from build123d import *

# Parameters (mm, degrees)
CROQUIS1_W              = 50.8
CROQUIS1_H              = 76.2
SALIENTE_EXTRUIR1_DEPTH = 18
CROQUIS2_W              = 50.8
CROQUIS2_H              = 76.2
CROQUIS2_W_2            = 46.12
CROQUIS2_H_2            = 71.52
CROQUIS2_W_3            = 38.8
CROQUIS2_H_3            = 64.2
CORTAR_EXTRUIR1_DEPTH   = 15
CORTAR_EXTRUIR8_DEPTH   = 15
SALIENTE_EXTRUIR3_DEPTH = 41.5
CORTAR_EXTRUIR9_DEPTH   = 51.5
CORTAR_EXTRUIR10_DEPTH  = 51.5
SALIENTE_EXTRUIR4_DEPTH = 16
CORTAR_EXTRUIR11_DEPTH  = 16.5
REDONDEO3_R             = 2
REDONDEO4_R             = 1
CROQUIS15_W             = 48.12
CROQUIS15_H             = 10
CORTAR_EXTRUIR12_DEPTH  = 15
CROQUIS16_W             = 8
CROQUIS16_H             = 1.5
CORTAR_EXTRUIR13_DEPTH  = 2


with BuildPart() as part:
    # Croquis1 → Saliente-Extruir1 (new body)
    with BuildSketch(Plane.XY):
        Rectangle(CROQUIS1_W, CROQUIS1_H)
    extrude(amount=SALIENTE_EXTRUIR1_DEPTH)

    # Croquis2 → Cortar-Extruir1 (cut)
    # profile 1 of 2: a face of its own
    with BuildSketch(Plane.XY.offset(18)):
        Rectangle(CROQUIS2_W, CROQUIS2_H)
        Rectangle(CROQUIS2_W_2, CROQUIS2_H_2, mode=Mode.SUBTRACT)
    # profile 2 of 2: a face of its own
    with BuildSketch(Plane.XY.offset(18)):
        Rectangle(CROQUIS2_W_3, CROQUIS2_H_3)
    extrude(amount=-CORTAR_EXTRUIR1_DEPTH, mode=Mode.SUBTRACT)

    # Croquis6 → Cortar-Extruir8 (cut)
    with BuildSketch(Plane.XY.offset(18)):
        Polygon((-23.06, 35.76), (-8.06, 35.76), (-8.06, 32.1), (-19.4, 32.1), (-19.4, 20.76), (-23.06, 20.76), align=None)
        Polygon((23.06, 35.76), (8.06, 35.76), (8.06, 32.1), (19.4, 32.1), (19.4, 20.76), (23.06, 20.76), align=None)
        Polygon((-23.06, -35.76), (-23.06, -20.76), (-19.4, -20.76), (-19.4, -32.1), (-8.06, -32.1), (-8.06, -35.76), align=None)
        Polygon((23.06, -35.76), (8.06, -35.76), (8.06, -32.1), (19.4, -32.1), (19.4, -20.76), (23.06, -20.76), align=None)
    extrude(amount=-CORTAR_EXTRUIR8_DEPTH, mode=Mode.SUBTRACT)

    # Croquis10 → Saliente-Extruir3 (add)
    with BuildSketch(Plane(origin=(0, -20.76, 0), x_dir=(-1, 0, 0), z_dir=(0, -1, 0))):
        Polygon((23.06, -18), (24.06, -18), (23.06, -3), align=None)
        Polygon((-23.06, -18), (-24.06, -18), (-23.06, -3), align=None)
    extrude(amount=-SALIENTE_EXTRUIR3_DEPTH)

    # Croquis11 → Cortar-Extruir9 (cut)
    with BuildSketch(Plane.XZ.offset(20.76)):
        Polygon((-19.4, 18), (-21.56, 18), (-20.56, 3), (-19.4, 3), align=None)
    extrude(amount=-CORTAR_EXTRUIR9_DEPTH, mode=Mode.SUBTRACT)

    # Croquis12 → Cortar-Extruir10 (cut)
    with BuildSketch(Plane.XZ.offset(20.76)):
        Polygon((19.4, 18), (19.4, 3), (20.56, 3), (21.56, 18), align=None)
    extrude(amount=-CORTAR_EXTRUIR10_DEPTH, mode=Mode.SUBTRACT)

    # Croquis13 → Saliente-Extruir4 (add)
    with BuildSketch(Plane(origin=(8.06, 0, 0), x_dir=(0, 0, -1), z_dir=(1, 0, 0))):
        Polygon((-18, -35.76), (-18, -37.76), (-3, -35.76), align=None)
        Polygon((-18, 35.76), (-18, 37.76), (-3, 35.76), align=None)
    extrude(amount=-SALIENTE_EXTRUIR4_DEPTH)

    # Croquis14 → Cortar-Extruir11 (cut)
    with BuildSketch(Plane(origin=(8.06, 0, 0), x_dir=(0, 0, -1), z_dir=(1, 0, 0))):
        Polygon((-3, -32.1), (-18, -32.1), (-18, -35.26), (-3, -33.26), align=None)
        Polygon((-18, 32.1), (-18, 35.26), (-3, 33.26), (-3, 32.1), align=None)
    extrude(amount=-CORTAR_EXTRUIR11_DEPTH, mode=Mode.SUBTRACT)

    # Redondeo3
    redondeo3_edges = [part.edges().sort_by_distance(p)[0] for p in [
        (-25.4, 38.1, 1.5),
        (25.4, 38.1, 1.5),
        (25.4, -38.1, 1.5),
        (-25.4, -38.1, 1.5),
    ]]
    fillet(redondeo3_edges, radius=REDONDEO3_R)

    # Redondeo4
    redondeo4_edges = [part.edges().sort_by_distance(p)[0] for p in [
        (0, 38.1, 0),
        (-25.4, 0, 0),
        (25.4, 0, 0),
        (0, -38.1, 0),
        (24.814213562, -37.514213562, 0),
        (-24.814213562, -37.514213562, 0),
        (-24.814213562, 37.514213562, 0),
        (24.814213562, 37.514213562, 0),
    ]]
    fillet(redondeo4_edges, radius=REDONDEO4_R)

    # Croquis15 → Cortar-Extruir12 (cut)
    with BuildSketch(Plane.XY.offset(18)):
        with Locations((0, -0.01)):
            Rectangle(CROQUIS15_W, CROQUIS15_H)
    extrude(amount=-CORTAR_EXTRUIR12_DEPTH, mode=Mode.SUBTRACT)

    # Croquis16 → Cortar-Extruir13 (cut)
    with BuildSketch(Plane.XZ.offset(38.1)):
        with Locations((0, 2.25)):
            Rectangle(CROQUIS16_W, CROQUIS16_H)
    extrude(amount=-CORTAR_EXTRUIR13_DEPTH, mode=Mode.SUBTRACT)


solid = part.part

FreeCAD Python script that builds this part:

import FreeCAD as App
import Part
import Sketcher
from FreeCAD import Vector
Q = App.Units.Quantity


def edges_at(feature, points):
    """Names of the edges that pass closest to the given points."""
    edges = feature.Shape.Edges
    near = lambda p: min(range(len(edges)), key=lambda i: edges[i].distToShape(Part.Vertex(*p))[0])
    return sorted({f"Edge{near(p) + 1}" for p in points})


def add_polygon(sketch, points):
    """Adds a closed chain of lines whose ends are joined by coincident constraints."""
    first, n = sketch.GeometryCount, len(points)
    for a, b in zip(points, points[1:] + points[:1]):
        sketch.addGeometry(Part.LineSegment(App.Vector(*a, 0), App.Vector(*b, 0)), False)
    for i in range(n):
        sketch.addConstraint(Sketcher.Constraint("Coincident", first + i, 2, first + (i + 1) % n, 1))

doc = App.newDocument("Part")
body = doc.addObject("PartDesign::Body", "Body")

sketch1 = body.newObject("Sketcher::SketchObject", "Sketch")
sketch1.AttachmentSupport = (doc.getObject("XY_Plane"), [""])
sketch1.MapMode = "FlatFace"
add_polygon(sketch1, [(-25, 38), (-25, -38), (25, -38), (25, 38)])
sketch1.addConstraint([
    Sketcher.Constraint("Vertical", 0),
    Sketcher.Constraint("Horizontal", 1),
    Sketcher.Constraint("Vertical", 2),
    Sketcher.Constraint("Horizontal", 3),
    Sketcher.Constraint("Symmetric", 0, 2, 2, 2, -1, 1),
    Sketcher.Constraint("DistanceX", 1, 1, 1, 2, Q("50.8 mm")),
    Sketcher.Constraint("DistanceY", 0, 2, 0, 1, Q("76.2 mm")),
])
pad1 = body.newObject("PartDesign::Pad", "Pad")
pad1.Profile = sketch1
pad1.Length = 18

sketch2 = body.newObject("Sketcher::SketchObject", "Sketch001")
sketch2.AttachmentSupport = (doc.getObject("XY_Plane"), [""])
sketch2.MapMode = "FlatFace"
sketch2.AttachmentOffset = App.Placement(Vector(0, 0, 18), App.Rotation())
add_polygon(sketch2, [(-25, 38), (-25, -38), (25, -38), (25, 38)])
add_polygon(sketch2, [(23, -36), (-23, -36), (-23, 36), (23, 36)])
add_polygon(sketch2, [(-19, 32), (-19, -32), (19, -32), (19, 32)])
sketch2.addConstraint([
    Sketcher.Constraint("Vertical", 0),
    Sketcher.Constraint("Horizontal", 1),
    Sketcher.Constraint("Vertical", 2),
    Sketcher.Constraint("Horizontal", 3),
    Sketcher.Constraint("Horizontal", 4),
    Sketcher.Constraint("Vertical", 5),
    Sketcher.Constraint("Horizontal", 6),
    Sketcher.Constraint("Vertical", 7),
    Sketcher.Constraint("Vertical", 8),
    Sketcher.Constraint("Horizontal", 9),
    Sketcher.Constraint("Vertical", 10),
    Sketcher.Constraint("Horizontal", 11),
    Sketcher.Constraint("Symmetric", 0, 2, 2, 2, -1, 1),
    Sketcher.Constraint("Symmetric", 4, 2, 6, 2, -1, 1),
    Sketcher.Constraint("Symmetric", 8, 2, 10, 2, -1, 1),
    Sketcher.Constraint("DistanceX", 1, 1, 1, 2, Q("50.8 mm")),
    Sketcher.Constraint("DistanceX", 9, 1, 9, 2, Q("38.8 mm")),
    Sketcher.Constraint("DistanceY", 0, 2, 0, 1, Q("76.2 mm")),
    Sketcher.Constraint("DistanceY", 8, 2, 8, 1, Q("64.2 mm")),
    Sketcher.Constraint("DistanceX", 4, 2, 4, 1, Q("46.12 mm")),
    Sketcher.Constraint("DistanceY", 5, 1, 5, 2, Q("71.52 mm")),
])
pocket1 = body.newObject("PartDesign::Pocket", "Pocket")
pocket1.Profile = sketch2
pocket1.Length = 15

sketch3 = body.newObject("Sketcher::SketchObject", "Sketch002")
sketch3.AttachmentSupport = (doc.getObject("XY_Plane"), [""])
sketch3.MapMode = "FlatFace"
sketch3.AttachmentOffset = App.Placement(Vector(0, 0, 18), App.Rotation())
add_polygon(sketch3, [(-8.1, 35.8), (-23.1, 35.8), (-23.1, 20.8), (-19.4, 20.8), (-19.4, 32.1), (-8.1, 32.1)])
add_polygon(sketch3, [(23.1, 35.8), (8.1, 35.8), (8.1, 32.1), (19.4, 32.1), (19.4, 20.8), (23.1, 20.8)])
add_polygon(sketch3, [(-23.1, -20.8), (-23.1, -35.8), (-8.1, -35.8), (-8.1, -32.1), (-19.4, -32.1), (-19.4, -20.8)])
add_polygon(sketch3, [(8.1, -35.8), (23.1, -35.8), (23.1, -20.8), (19.4, -20.8), (19.4, -32.1), (8.1, -32.1)])
sketch3.addConstraint([
    Sketcher.Constraint("Horizontal", 0),
    Sketcher.Constraint("Vertical", 1),
    Sketcher.Constraint("Horizontal", 2),
    Sketcher.Constraint("Vertical", 3),
    Sketcher.Constraint("Horizontal", 4),
    Sketcher.Constraint("Vertical", 5),
    Sketcher.Constraint("Horizontal", 6),
    Sketcher.Constraint("Vertical", 7),
    Sketcher.Constraint("Horizontal", 8),
    Sketcher.Constraint("Vertical", 9),
    Sketcher.Constraint("Horizontal", 10),
    Sketcher.Constraint("Vertical", 11),
    Sketcher.Constraint("Vertical", 12),
    Sketcher.Constraint("Horizontal", 13),
    Sketcher.Constraint("Vertical", 14),
    Sketcher.Constraint("Horizontal", 15),
    Sketcher.Constraint("Vertical", 16),
    Sketcher.Constraint("Horizontal", 17),
    Sketcher.Constraint("Horizontal", 18),
    Sketcher.Constraint("Vertical", 19),
    Sketcher.Constraint("Horizontal", 20),
    Sketcher.Constraint("Vertical", 21),
    Sketcher.Constraint("Horizontal", 22),
    Sketcher.Constraint("Vertical", 23),
    Sketcher.Constraint("Symmetric", 11, 2, 12, 2, -1, 1),
    Sketcher.Constraint("Symmetric", 7, 2, 14, 2, -1, 1),
    Sketcher.Constraint("Symmetric", 9, 2, 16, 2, -1, 1),
    Sketcher.Constraint("Symmetric", 0, 2, 18, 2, -1, 1),
    Sketcher.Constraint("Symmetric", 2, 2, 20, 2, -1, 1),
    Sketcher.Constraint("Symmetric", 4, 2, 22, 2, -1, 1),
    Sketcher.Constraint("Symmetric", 5, 2, 6, 2, -2),
    Sketcher.Constraint("Symmetric", 3, 2, 8, 2, -2),
    Sketcher.Constraint("Symmetric", 1, 2, 10, 2, -2),
    Sketcher.Constraint("Equal", 18, 1),
    Sketcher.Constraint("Equal", 22, 3),
    Sketcher.Constraint("DistanceX", 0, 2, 0, 1, Q("15 mm")),
    Sketcher.Constraint("DistanceX", 2, 1, 2, 2, Q("3.66 mm")),
    Sketcher.Constraint("DistanceX", 2, 2, -1, 1, Q("19.4 mm")),
    Sketcher.Constraint("DistanceY", -1, 1, 3, 2, Q("32.1 mm")),
])
pocket2 = body.newObject("PartDesign::Pocket", "Pocket001")
pocket2.Profile = sketch3
pocket2.Length = 15

sketch4 = body.newObject("Sketcher::SketchObject", "Sketch003")
sketch4.AttachmentSupport = (doc.getObject("XZ_Plane"), [""])
sketch4.MapMode = "FlatFace"
sketch4.AttachmentOffset = App.Placement(Vector(0, 0, 20.76), App.Rotation())
add_polygon(sketch4, [(-23.1, 18), (-24.1, 18), (-23.1, 3)])
add_polygon(sketch4, [(24.1, 18), (23.1, 18), (23.1, 3)])
sketch4.addConstraint([
    Sketcher.Constraint("Horizontal", 0),
    Sketcher.Constraint("Vertical", 2),
    Sketcher.Constraint("Horizontal", 3),
    Sketcher.Constraint("Vertical", 4),
    Sketcher.Constraint("Symmetric", 2, 2, 3, 2, -2),
    Sketcher.Constraint("Horizontal", 1, 2, 4, 2),
    Sketcher.Constraint("Equal", 0, 3),
    Sketcher.Constraint("DistanceX", 0, 2, 0, 1, Q("1 mm")),
    Sketcher.Constraint("DistanceY", 2, 1, 2, 2, Q("15 mm")),
    Sketcher.Constraint("DistanceY", -1, 1, 0, 2, Q("18 mm")),
    Sketcher.Constraint("DistanceX", 0, 2, -1, 1, Q("24.06 mm")),
])
pad2 = body.newObject("PartDesign::Pad", "Pad001")
pad2.Profile = sketch4
pad2.Length = 41.5
pad2.Reversed = True

sketch5 = body.newObject("Sketcher::SketchObject", "Sketch004")
sketch5.AttachmentSupport = (doc.getObject("XZ_Plane"), [""])
sketch5.MapMode = "FlatFace"
sketch5.AttachmentOffset = App.Placement(Vector(0, 0, 20.76), App.Rotation())
add_polygon(sketch5, [(-19.4, 18), (-21.6, 18), (-20.6, 3), (-19.4, 3)])
sketch5.addConstraint([
    Sketcher.Constraint("Horizontal", 0),
    Sketcher.Constraint("Horizontal", 2),
    Sketcher.Constraint("Vertical", 3),
    Sketcher.Constraint("DistanceY", 3, 1, 3, 2, Q("15 mm")),
    Sketcher.Constraint("DistanceY", -1, 1, 0, 2, Q("18 mm")),
    Sketcher.Constraint("DistanceX", 0, 2, 1, 2, Q("1 mm")),
    Sketcher.Constraint("DistanceX", 0, 2, 0, 1, Q("2.16 mm")),
    Sketcher.Constraint("DistanceX", 2, 2, -1, 1, Q("19.4 mm")),
])
pocket3 = body.newObject("PartDesign::Pocket", "Pocket002")
pocket3.Profile = sketch5
pocket3.Length = 51.5

sketch6 = body.newObject("Sketcher::SketchObject", "Sketch005")
sketch6.AttachmentSupport = (doc.getObject("XZ_Plane"), [""])
sketch6.MapMode = "FlatFace"
sketch6.AttachmentOffset = App.Placement(Vector(0, 0, 20.76), App.Rotation())
add_polygon(sketch6, [(19.4, 18), (19.4, 3), (20.6, 3), (21.6, 18)])
sketch6.addConstraint([
    Sketcher.Constraint("Vertical", 0),
    Sketcher.Constraint("Horizontal", 1),
    Sketcher.Constraint("Horizontal", 3),
    Sketcher.Constraint("DistanceY", 0, 2, 0, 1, Q("15 mm")),
    Sketcher.Constraint("DistanceY", -1, 1, 0, 2, Q("3 mm")),
    Sketcher.Constraint("DistanceX", 1, 2, 2, 2, Q("1 mm")),
    Sketcher.Constraint("DistanceX", 1, 1, 1, 2, Q("1.16 mm")),
    Sketcher.Constraint("DistanceX", -1, 1, 0, 2, Q("19.4 mm")),
])
pocket4 = body.newObject("PartDesign::Pocket", "Pocket003")
pocket4.Profile = sketch6
pocket4.Length = 51.5

sketch7 = body.newObject("Sketcher::SketchObject", "Sketch006")
sketch7.AttachmentSupport = (doc.getObject("YZ_Plane"), [""])
sketch7.MapMode = "FlatFace"
sketch7.AttachmentOffset = App.Placement(Vector(0, 0, 8.06), App.Rotation())
add_polygon(sketch7, [(-35.8, 18), (-37.8, 18), (-35.8, 3)])
add_polygon(sketch7, [(37.8, 18), (35.8, 18), (35.8, 3)])
sketch7.addConstraint([
    Sketcher.Constraint("Horizontal", 0),
    Sketcher.Constraint("Vertical", 2),
    Sketcher.Constraint("Horizontal", 3),
    Sketcher.Constraint("Vertical", 4),
    Sketcher.Constraint("Symmetric", 2, 2, 3, 2, -2),
    Sketcher.Constraint("Horizontal", 1, 2, 4, 2),
    Sketcher.Constraint("Equal", 0, 3),
    Sketcher.Constraint("DistanceX", 0, 2, 0, 1, Q("2 mm")),
    Sketcher.Constraint("DistanceY", 2, 1, 2, 2, Q("15 mm")),
    Sketcher.Constraint("DistanceY", -1, 1, 0, 2, Q("18 mm")),
    Sketcher.Constraint("DistanceX", 0, 2, -1, 1, Q("37.76 mm")),
])
pad3 = body.newObject("PartDesign::Pad", "Pad002")
pad3.Profile = sketch7
pad3.Length = 16
pad3.Reversed = True

sketch8 = body.newObject("Sketcher::SketchObject", "Sketch007")
sketch8.AttachmentSupport = (doc.getObject("YZ_Plane"), [""])
sketch8.MapMode = "FlatFace"
sketch8.AttachmentOffset = App.Placement(Vector(0, 0, 8.06), App.Rotation())
add_polygon(sketch8, [(-32.1, 3), (-32.1, 18), (-35.3, 18), (-33.3, 3)])
add_polygon(sketch8, [(35.3, 18), (32.1, 18), (32.1, 3), (33.3, 3)])
sketch8.addConstraint([
    Sketcher.Constraint("Vertical", 0),
    Sketcher.Constraint("Horizontal", 1),
    Sketcher.Constraint("Horizontal", 3),
    Sketcher.Constraint("Horizontal", 4),
    Sketcher.Constraint("Vertical", 5),
    Sketcher.Constraint("Horizontal", 6),
    Sketcher.Constraint("Symmetric", 0, 2, 4, 2, -2),
    Sketcher.Constraint("Symmetric", 2, 2, 6, 2, -2),
    Sketcher.Constraint("Equal", 1, 4),
    Sketcher.Constraint("DistanceY", 0, 1, 0, 2, Q("15 mm")),
    Sketcher.Constraint("DistanceY", -1, 1, 0, 2, Q("18 mm")),
    Sketcher.Constraint("DistanceX", 1, 2, 2, 2, Q("2 mm")),
    Sketcher.Constraint("DistanceX", 1, 2, 1, 1, Q("3.16 mm")),
    Sketcher.Constraint("DistanceX", 0, 2, -1, 1, Q("32.1 mm")),
])
pocket5 = body.newObject("PartDesign::Pocket", "Pocket004")
pocket5.Profile = sketch8
pocket5.Length = 16.5
doc.recompute()

fillet = body.newObject("PartDesign::Fillet", "Fillet")
fillet.Base = (pocket5, edges_at(pocket5, [
    (-25.4, 38.1, 1.5),
    (25.4, 38.1, 1.5),
    (25.4, -38.1, 1.5),
    (-25.4, -38.1, 1.5),
]))
fillet.Radius = 2
doc.recompute()

fillet2 = body.newObject("PartDesign::Fillet", "Fillet001")
fillet2.Base = (fillet, edges_at(fillet, [
    (0, 38.1, 0),
    (-25.4, 0, 0),
    (25.4, 0, 0),
    (0, -38.1, 0),
    (24.814, -37.514, 0),
    (-24.814, -37.514, 0),
    (-24.814, 37.514, 0),
    (24.814, 37.514, 0),
]))
fillet2.Radius = 1

sketch9 = body.newObject("Sketcher::SketchObject", "Sketch008")
sketch9.AttachmentSupport = (doc.getObject("XY_Plane"), [""])
sketch9.MapMode = "FlatFace"
sketch9.AttachmentOffset = App.Placement(Vector(0, 0, 18), App.Rotation())
add_polygon(sketch9, [(-24, 5), (-24, -5), (24, -5), (24, 5)])
sketch9.addConstraint([
    Sketcher.Constraint("Vertical", 0),
    Sketcher.Constraint("Horizontal", 1),
    Sketcher.Constraint("Vertical", 2),
    Sketcher.Constraint("Horizontal", 3),
    Sketcher.Constraint("DistanceY", 0, 2, 0, 1, Q("10 mm")),
    Sketcher.Constraint("DistanceX", 1, 1, 1, 2, Q("48.12 mm")),
    Sketcher.Constraint("DistanceX", 0, 2, -1, 1, Q("24.06 mm")),
    Sketcher.Constraint("DistanceY", 0, 2, -1, 1, Q("5.01 mm")),
])
pocket6 = body.newObject("PartDesign::Pocket", "Pocket005")
pocket6.Profile = sketch9
pocket6.Length = 15

sketch10 = body.newObject("Sketcher::SketchObject", "Sketch009")
sketch10.AttachmentSupport = (doc.getObject("XZ_Plane"), [""])
sketch10.MapMode = "FlatFace"
sketch10.AttachmentOffset = App.Placement(Vector(0, 0, 38.1), App.Rotation())
add_polygon(sketch10, [(-4, 3), (-4, 1.5), (4, 1.5), (4, 3)])
sketch10.addConstraint([
    Sketcher.Constraint("Vertical", 0),
    Sketcher.Constraint("Horizontal", 1),
    Sketcher.Constraint("Vertical", 2),
    Sketcher.Constraint("Horizontal", 3),
    Sketcher.Constraint("DistanceX", 1, 1, 1, 2, Q("8 mm")),
    Sketcher.Constraint("DistanceY", 0, 2, 0, 1, Q("1.5 mm")),
    Sketcher.Constraint("DistanceX", 0, 2, -1, 1, Q("4 mm")),
    Sketcher.Constraint("DistanceY", -1, 1, 2, 2, Q("3 mm")),
])
pocket7 = body.newObject("PartDesign::Pocket", "Pocket006")
pocket7.Profile = sketch10
pocket7.Length = 2

doc.recompute()
